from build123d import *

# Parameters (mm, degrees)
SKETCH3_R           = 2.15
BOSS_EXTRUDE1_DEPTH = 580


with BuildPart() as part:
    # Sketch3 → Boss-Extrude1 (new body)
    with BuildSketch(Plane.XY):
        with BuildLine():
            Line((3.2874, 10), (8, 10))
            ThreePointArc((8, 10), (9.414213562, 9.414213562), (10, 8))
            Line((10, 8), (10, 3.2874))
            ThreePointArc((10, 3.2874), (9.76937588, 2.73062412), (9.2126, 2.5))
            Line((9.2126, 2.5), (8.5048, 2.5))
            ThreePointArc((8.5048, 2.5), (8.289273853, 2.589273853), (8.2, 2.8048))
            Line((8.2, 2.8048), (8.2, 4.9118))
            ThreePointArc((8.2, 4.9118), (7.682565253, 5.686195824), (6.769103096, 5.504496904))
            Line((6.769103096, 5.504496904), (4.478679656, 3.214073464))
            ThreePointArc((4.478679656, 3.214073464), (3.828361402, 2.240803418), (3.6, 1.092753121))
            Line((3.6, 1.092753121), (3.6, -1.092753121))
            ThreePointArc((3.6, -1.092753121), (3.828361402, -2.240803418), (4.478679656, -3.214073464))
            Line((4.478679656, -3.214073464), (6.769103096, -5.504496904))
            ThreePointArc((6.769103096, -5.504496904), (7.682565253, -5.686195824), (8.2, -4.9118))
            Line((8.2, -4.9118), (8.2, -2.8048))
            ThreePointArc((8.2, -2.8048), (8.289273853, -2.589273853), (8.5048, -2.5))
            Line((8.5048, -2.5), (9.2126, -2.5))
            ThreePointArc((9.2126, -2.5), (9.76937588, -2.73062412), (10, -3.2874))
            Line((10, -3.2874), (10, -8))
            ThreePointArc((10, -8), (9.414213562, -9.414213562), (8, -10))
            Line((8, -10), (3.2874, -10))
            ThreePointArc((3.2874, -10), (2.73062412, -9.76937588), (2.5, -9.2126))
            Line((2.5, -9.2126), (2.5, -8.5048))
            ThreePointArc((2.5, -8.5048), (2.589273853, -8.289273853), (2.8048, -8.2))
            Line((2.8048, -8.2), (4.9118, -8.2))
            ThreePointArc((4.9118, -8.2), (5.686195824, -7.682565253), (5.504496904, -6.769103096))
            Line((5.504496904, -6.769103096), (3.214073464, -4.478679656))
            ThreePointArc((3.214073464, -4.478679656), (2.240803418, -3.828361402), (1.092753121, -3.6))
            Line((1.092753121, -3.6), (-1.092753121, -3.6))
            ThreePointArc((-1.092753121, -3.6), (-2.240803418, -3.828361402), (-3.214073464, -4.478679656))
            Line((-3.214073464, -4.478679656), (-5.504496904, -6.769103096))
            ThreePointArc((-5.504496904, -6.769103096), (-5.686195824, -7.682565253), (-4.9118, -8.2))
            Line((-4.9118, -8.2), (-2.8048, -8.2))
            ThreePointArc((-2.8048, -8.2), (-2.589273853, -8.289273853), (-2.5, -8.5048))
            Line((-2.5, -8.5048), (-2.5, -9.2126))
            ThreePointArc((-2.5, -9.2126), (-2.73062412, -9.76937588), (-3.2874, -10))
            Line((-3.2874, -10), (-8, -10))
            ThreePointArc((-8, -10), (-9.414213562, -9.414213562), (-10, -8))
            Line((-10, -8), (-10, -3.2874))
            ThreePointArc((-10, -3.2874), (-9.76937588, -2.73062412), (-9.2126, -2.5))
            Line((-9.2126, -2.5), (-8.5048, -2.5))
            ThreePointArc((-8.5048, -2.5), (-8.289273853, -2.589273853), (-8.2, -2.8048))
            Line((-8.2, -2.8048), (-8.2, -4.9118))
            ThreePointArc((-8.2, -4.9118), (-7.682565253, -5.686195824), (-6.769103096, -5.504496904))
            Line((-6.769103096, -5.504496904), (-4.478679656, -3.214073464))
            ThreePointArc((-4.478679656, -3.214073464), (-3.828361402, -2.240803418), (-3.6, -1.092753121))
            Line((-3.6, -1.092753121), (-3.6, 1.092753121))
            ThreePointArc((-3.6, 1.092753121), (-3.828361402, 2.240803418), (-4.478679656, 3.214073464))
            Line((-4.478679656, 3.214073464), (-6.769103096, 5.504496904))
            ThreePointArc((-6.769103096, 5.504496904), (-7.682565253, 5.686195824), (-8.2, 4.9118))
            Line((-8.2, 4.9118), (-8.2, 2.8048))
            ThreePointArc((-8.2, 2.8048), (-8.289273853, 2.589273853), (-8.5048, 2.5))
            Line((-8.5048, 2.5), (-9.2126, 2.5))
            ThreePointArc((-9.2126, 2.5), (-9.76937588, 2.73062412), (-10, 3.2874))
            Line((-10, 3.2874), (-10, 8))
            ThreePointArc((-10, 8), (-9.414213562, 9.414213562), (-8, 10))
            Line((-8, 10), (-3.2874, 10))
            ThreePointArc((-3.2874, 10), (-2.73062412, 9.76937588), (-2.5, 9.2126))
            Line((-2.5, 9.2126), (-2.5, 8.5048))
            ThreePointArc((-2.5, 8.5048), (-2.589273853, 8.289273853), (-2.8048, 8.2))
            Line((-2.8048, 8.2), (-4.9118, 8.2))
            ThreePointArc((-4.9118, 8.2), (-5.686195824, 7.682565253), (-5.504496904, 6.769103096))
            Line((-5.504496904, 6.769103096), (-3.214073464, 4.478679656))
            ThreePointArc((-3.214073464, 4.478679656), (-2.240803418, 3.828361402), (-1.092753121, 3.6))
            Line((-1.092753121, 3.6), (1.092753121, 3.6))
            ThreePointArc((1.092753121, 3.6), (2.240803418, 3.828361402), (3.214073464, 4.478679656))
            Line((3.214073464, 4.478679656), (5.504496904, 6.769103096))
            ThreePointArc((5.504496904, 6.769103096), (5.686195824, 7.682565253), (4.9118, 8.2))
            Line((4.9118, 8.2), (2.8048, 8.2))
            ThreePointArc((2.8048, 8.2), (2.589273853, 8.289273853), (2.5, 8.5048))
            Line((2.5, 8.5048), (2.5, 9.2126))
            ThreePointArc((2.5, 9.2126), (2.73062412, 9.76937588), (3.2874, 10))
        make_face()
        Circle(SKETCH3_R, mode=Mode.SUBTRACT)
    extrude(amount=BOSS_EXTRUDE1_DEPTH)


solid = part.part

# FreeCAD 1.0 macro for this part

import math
import FreeCAD as App
import Part
import Sketcher

V = App.Vector

doc = App.newDocument("Part")
body = doc.addObject("PartDesign::Body", "Body")

sketch1 = body.newObject("Sketcher::SketchObject", "Sketch")
sketch1.AttachmentSupport = (doc.getObject("XY_Plane"), [""])
sketch1.MapMode = "FlatFace"
sketch1.addGeometry([
    Part.LineSegment(V(8, 10, 0), V(3.2874, 10, 0)),
    Part.ArcOfCircle(Part.Circle(V(3.2874, 9.2126, 0), V(0, 0, 1), 0.7874), math.radians(90), math.radians(180)),
    Part.LineSegment(V(2.5, 9.2126, 0), V(2.5, 8.5048, 0)),
    Part.ArcOfCircle(Part.Circle(V(2.8048, 8.5048, 0), V(0, 0, 1), 0.3048), math.radians(180), math.radians(270)),
    Part.LineSegment(V(2.8048, 8.2, 0), V(4.9118, 8.2, 0)),
    Part.ArcOfCircle(Part.Circle(V(4.9118, 7.3618, 0), V(0, 0, 1), 0.8382), math.radians(-45), math.radians(90)),
    Part.LineSegment(V(5.504497, 6.769103, 0), V(3.214073, 4.47868, 0)),
    Part.ArcOfCircle(Part.Circle(V(1.092753, 6.6, 0), V(0, 0, 1), 3), math.radians(-90), math.radians(-45)),
    Part.LineSegment(V(1.092753, 3.6, 0), V(-1.092753, 3.6, 0)),
    Part.ArcOfCircle(Part.Circle(V(-1.092753, 6.6, 0), V(0, 0, 1), 3), math.radians(-135), math.radians(-90)),
    Part.LineSegment(V(-3.214073, 4.47868, 0), V(-5.504497, 6.769103, 0)),
    Part.ArcOfCircle(Part.Circle(V(-4.9118, 7.3618, 0), V(0, 0, 1), 0.8382), math.radians(90), math.radians(225)),
    Part.LineSegment(V(-4.9118, 8.2, 0), V(-2.8048, 8.2, 0)),
    Part.ArcOfCircle(Part.Circle(V(-2.8048, 8.5048, 0), V(0, 0, 1), 0.3048), math.radians(-90), math.radians(0)),
    Part.LineSegment(V(-2.5, 8.5048, 0), V(-2.5, 9.2126, 0)),
    Part.ArcOfCircle(Part.Circle(V(-3.2874, 9.2126, 0), V(0, 0, 1), 0.7874), math.radians(0), math.radians(90)),
    Part.LineSegment(V(-3.2874, 10, 0), V(-8, 10, 0)),
    Part.ArcOfCircle(Part.Circle(V(-8, 8, 0), V(0, 0, 1), 2), math.radians(90), math.radians(180)),
    Part.LineSegment(V(-10, 8, 0), V(-10, 3.2874, 0)),
    Part.ArcOfCircle(Part.Circle(V(-9.2126, 3.2874, 0), V(0, 0, 1), 0.7874), math.radians(180), math.radians(270)),
    Part.LineSegment(V(-9.2126, 2.5, 0), V(-8.5048, 2.5, 0)),
    Part.ArcOfCircle(Part.Circle(V(-8.5048, 2.8048, 0), V(0, 0, 1), 0.3048), math.radians(-90), math.radians(0)),
    Part.LineSegment(V(-8.2, 2.8048, 0), V(-8.2, 4.9118, 0)),
    Part.ArcOfCircle(Part.Circle(V(-7.3618, 4.9118, 0), V(0, 0, 1), 0.8382), math.radians(45), math.radians(180)),
    Part.LineSegment(V(-6.769103, 5.504497, 0), V(-4.47868, 3.214073, 0)),
    Part.ArcOfCircle(Part.Circle(V(-6.6, 1.092753, 0), V(0, 0, 1), 3), math.radians(0), math.radians(45)),
    Part.LineSegment(V(-3.6, 1.092753, 0), V(-3.6, -1.092753, 0)),
    Part.ArcOfCircle(Part.Circle(V(-6.6, -1.092753, 0), V(0, 0, 1), 3), math.radians(-45), math.radians(0)),
    Part.LineSegment(V(-4.47868, -3.214073, 0), V(-6.769103, -5.504497, 0)),
    Part.ArcOfCircle(Part.Circle(V(-7.3618, -4.9118, 0), V(0, 0, 1), 0.8382), math.radians(180), math.radians(315)),
    Part.LineSegment(V(-8.2, -4.9118, 0), V(-8.2, -2.8048, 0)),
    Part.ArcOfCircle(Part.Circle(V(-8.5048, -2.8048, 0), V(0, 0, 1), 0.3048), math.radians(0), math.radians(90)),
    Part.LineSegment(V(-8.5048, -2.5, 0), V(-9.2126, -2.5, 0)),
    Part.ArcOfCircle(Part.Circle(V(-9.2126, -3.2874, 0), V(0, 0, 1), 0.7874), math.radians(90), math.radians(180)),
    Part.LineSegment(V(-10, -3.2874, 0), V(-10, -8, 0)),
    Part.ArcOfCircle(Part.Circle(V(-8, -8, 0), V(0, 0, 1), 2), math.radians(-180), math.radians(-90)),
    Part.LineSegment(V(-8, -10, 0), V(-3.2874, -10, 0)),
    Part.ArcOfCircle(Part.Circle(V(-3.2874, -9.2126, 0), V(0, 0, 1), 0.7874), math.radians(-90), math.radians(0)),
    Part.LineSegment(V(-2.5, -9.2126, 0), V(-2.5, -8.5048, 0)),
    Part.ArcOfCircle(Part.Circle(V(-2.8048, -8.5048, 0), V(0, 0, 1), 0.3048), math.radians(0), math.radians(90)),
    Part.LineSegment(V(-2.8048, -8.2, 0), V(-4.9118, -8.2, 0)),
    Part.ArcOfCircle(Part.Circle(V(-4.9118, -7.3618, 0), V(0, 0, 1), 0.8382), math.radians(135), math.radians(270)),
    Part.LineSegment(V(-5.504497, -6.769103, 0), V(-3.214073, -4.47868, 0)),
    Part.ArcOfCircle(Part.Circle(V(-1.092753, -6.6, 0), V(0, 0, 1), 3), math.radians(90), math.radians(135)),
    Part.LineSegment(V(-1.092753, -3.6, 0), V(1.092753, -3.6, 0)),
    Part.ArcOfCircle(Part.Circle(V(1.092753, -6.6, 0), V(0, 0, 1), 3), math.radians(45), math.radians(90)),
    Part.LineSegment(V(3.214073, -4.47868, 0), V(5.504497, -6.769103, 0)),
    Part.ArcOfCircle(Part.Circle(V(4.9118, -7.3618, 0), V(0, 0, 1), 0.8382), math.radians(-90), math.radians(45)),
    Part.LineSegment(V(4.9118, -8.2, 0), V(2.8048, -8.2, 0)),
    Part.ArcOfCircle(Part.Circle(V(2.8048, -8.5048, 0), V(0, 0, 1), 0.3048), math.radians(90), math.radians(180)),
    Part.LineSegment(V(2.5, -8.5048, 0), V(2.5, -9.2126, 0)),
    Part.ArcOfCircle(Part.Circle(V(3.2874, -9.2126, 0), V(0, 0, 1), 0.7874), math.radians(180), math.radians(270)),
    Part.LineSegment(V(3.2874, -10, 0), V(8, -10, 0)),
    Part.ArcOfCircle(Part.Circle(V(8, -8, 0), V(0, 0, 1), 2), math.radians(-90), math.radians(0)),
    Part.LineSegment(V(10, -8, 0), V(10, -3.2874, 0)),
    Part.ArcOfCircle(Part.Circle(V(9.2126, -3.2874, 0), V(0, 0, 1), 0.7874), math.radians(0), math.radians(90)),
    Part.LineSegment(V(9.2126, -2.5, 0), V(8.5048, -2.5, 0)),
    Part.ArcOfCircle(Part.Circle(V(8.5048, -2.8048, 0), V(0, 0, 1), 0.3048), math.radians(90), math.radians(180)),
    Part.LineSegment(V(8.2, -2.8048, 0), V(8.2, -4.9118, 0)),
    Part.ArcOfCircle(Part.Circle(V(7.3618, -4.9118, 0), V(0, 0, 1), 0.8382), math.radians(-135), math.radians(0)),
    Part.LineSegment(V(6.769103, -5.504497, 0), V(4.47868, -3.214073, 0)),
    Part.ArcOfCircle(Part.Circle(V(6.6, -1.092753, 0), V(0, 0, 1), 3), math.radians(180), math.radians(225)),
    Part.LineSegment(V(3.6, -1.092753, 0), V(3.6, 1.092753, 0)),
    Part.ArcOfCircle(Part.Circle(V(6.6, 1.092753, 0), V(0, 0, 1), 3), math.radians(135), math.radians(180)),
    Part.LineSegment(V(4.47868, 3.214073, 0), V(6.769103, 5.504497, 0)),
    Part.ArcOfCircle(Part.Circle(V(7.3618, 4.9118, 0), V(0, 0, 1), 0.8382), math.radians(0), math.radians(135)),
    Part.LineSegment(V(8.2, 4.9118, 0), V(8.2, 2.8048, 0)),
    Part.ArcOfCircle(Part.Circle(V(8.5048, 2.8048, 0), V(0, 0, 1), 0.3048), math.radians(180), math.radians(270)),
    Part.LineSegment(V(8.5048, 2.5, 0), V(9.2126, 2.5, 0)),
    Part.ArcOfCircle(Part.Circle(V(9.2126, 3.2874, 0), V(0, 0, 1), 0.7874), math.radians(-90), math.radians(0)),
    Part.LineSegment(V(10, 3.2874, 0), V(10, 8, 0)),
    Part.ArcOfCircle(Part.Circle(V(8, 8, 0), V(0, 0, 1), 2), math.radians(0), math.radians(90)),
    Part.Circle(V(0, 0, 0), V(0, 0, 1), 2.15),
], False)
sketch1.addConstraint([
    Sketcher.Constraint("Tangent", 0, 2, 1, 1),
    Sketcher.Constraint("Tangent", 1, 2, 2, 1),
    Sketcher.Constraint("Tangent", 2, 2, 3, 1),
    Sketcher.Constraint("Tangent", 3, 2, 4, 1),
    Sketcher.Constraint("Tangent", 4, 2, 5, 2),
    Sketcher.Constraint("Tangent", 5, 1, 6, 1),
    Sketcher.Constraint("Tangent", 6, 2, 7, 2),
    Sketcher.Constraint("Tangent", 7, 1, 8, 1),
    Sketcher.Constraint("Tangent", 8, 2, 9, 2),
    Sketcher.Constraint("Tangent", 9, 1, 10, 1),
    Sketcher.Constraint("Tangent", 10, 2, 11, 2),
    Sketcher.Constraint("Tangent", 11, 1, 12, 1),
    Sketcher.Constraint("Tangent", 12, 2, 13, 1),
    Sketcher.Constraint("Tangent", 13, 2, 14, 1),
    Sketcher.Constraint("Tangent", 14, 2, 15, 1),
    Sketcher.Constraint("Tangent", 15, 2, 16, 1),
    Sketcher.Constraint("Tangent", 16, 2, 17, 1),
    Sketcher.Constraint("Tangent", 17, 2, 18, 1),
    Sketcher.Constraint("Tangent", 18, 2, 19, 1),
    Sketcher.Constraint("Tangent", 19, 2, 20, 1),
    Sketcher.Constraint("Tangent", 20, 2, 21, 1),
    Sketcher.Constraint("Tangent", 21, 2, 22, 1),
    Sketcher.Constraint("Tangent", 22, 2, 23, 2),
    Sketcher.Constraint("Tangent", 23, 1, 24, 1),
    Sketcher.Constraint("Tangent", 24, 2, 25, 2),
    Sketcher.Constraint("Tangent", 25, 1, 26, 1),
    Sketcher.Constraint("Tangent", 26, 2, 27, 2),
    Sketcher.Constraint("Tangent", 27, 1, 28, 1),
    Sketcher.Constraint("Tangent", 28, 2, 29, 2),
    Sketcher.Constraint("Tangent", 29, 1, 30, 1),
    Sketcher.Constraint("Tangent", 30, 2, 31, 1),
    Sketcher.Constraint("Tangent", 31, 2, 32, 1),
    Sketcher.Constraint("Tangent", 32, 2, 33, 1),
    Sketcher.Constraint("Tangent", 33, 2, 34, 1),
    Sketcher.Constraint("Tangent", 34, 2, 35, 1),
    Sketcher.Constraint("Tangent", 35, 2, 36, 1),
    Sketcher.Constraint("Tangent", 36, 2, 37, 1),
    Sketcher.Constraint("Tangent", 37, 2, 38, 1),
    Sketcher.Constraint("Tangent", 38, 2, 39, 1),
    Sketcher.Constraint("Tangent", 39, 2, 40, 1),
    Sketcher.Constraint("Tangent", 40, 2, 41, 2),
    Sketcher.Constraint("Tangent", 41, 1, 42, 1),
    Sketcher.Constraint("Tangent", 42, 2, 43, 2),
    Sketcher.Constraint("Tangent", 43, 1, 44, 1),
    Sketcher.Constraint("Tangent", 44, 2, 45, 2),
    Sketcher.Constraint("Tangent", 45, 1, 46, 1),
    Sketcher.Constraint("Tangent", 46, 2, 47, 2),
    Sketcher.Constraint("Tangent", 47, 1, 48, 1),
    Sketcher.Constraint("Tangent", 48, 2, 49, 1),
    Sketcher.Constraint("Tangent", 49, 2, 50, 1),
    Sketcher.Constraint("Tangent", 50, 2, 51, 1),
    Sketcher.Constraint("Tangent", 51, 2, 52, 1),
    Sketcher.Constraint("Tangent", 52, 2, 53, 1),
    Sketcher.Constraint("Tangent", 53, 2, 54, 1),
    Sketcher.Constraint("Tangent", 54, 2, 55, 1),
    Sketcher.Constraint("Tangent", 55, 2, 56, 1),
    Sketcher.Constraint("Tangent", 56, 2, 57, 1),
    Sketcher.Constraint("Tangent", 57, 2, 58, 1),
    Sketcher.Constraint("Tangent", 58, 2, 59, 2),
    Sketcher.Constraint("Tangent", 59, 1, 60, 1),
    Sketcher.Constraint("Tangent", 60, 2, 61, 2),
    Sketcher.Constraint("Tangent", 61, 1, 62, 1),
    Sketcher.Constraint("Tangent", 62, 2, 63, 2),
    Sketcher.Constraint("Tangent", 63, 1, 64, 1),
    Sketcher.Constraint("Tangent", 64, 2, 65, 2),
    Sketcher.Constraint("Tangent", 65, 1, 66, 1),
    Sketcher.Constraint("Tangent", 66, 2, 67, 1),
    Sketcher.Constraint("Tangent", 67, 2, 68, 1),
    Sketcher.Constraint("Tangent", 68, 2, 69, 1),
    Sketcher.Constraint("Tangent", 69, 2, 70, 1),
    Sketcher.Constraint("Tangent", 70, 2, 71, 1),
    Sketcher.Constraint("Tangent", 71, 2, 0, 1),
    Sketcher.Constraint("Horizontal", 0),
    Sketcher.Constraint("Vertical", 2),
    Sketcher.Constraint("Horizontal", 4),
    Sketcher.Constraint("Horizontal", 8),
    Sketcher.Constraint("Horizontal", 12),
    Sketcher.Constraint("Vertical", 14),
    Sketcher.Constraint("Horizontal", 16),
    Sketcher.Constraint("Vertical", 18),
    Sketcher.Constraint("Horizontal", 20),
    Sketcher.Constraint("Vertical", 22),
    Sketcher.Constraint("Vertical", 26),
    Sketcher.Constraint("Vertical", 30),
    Sketcher.Constraint("Horizontal", 32),
    Sketcher.Constraint("Vertical", 34),
    Sketcher.Constraint("Horizontal", 36),
    Sketcher.Constraint("Vertical", 38),
    Sketcher.Constraint("Horizontal", 40),
    Sketcher.Constraint("Horizontal", 44),
    Sketcher.Constraint("Horizontal", 48),
    Sketcher.Constraint("Vertical", 50),
    Sketcher.Constraint("Horizontal", 52),
    Sketcher.Constraint("Vertical", 54),
    Sketcher.Constraint("Horizontal", 56),
    Sketcher.Constraint("Vertical", 58),
    Sketcher.Constraint("Vertical", 62),
    Sketcher.Constraint("Vertical", 66),
    Sketcher.Constraint("Horizontal", 68),
    Sketcher.Constraint("Vertical", 70),
    Sketcher.Constraint("Coincident", 72, 3, -1, 1),
    Sketcher.Constraint("Equal", 7, 9),
    Sketcher.Constraint("Equal", 5, 11),
    Sketcher.Constraint("Equal", 3, 13),
    Sketcher.Constraint("Equal", 1, 15),
    Sketcher.Constraint("Equal", 15, 19),
    Sketcher.Constraint("Equal", 13, 21),
    Sketcher.Constraint("Equal", 11, 23),
    Sketcher.Constraint("Equal", 9, 25),
    Sketcher.Constraint("Equal", 25, 27),
    Sketcher.Constraint("Equal", 23, 29),
    Sketcher.Constraint("Equal", 21, 31),
    Sketcher.Constraint("Equal", 19, 33),
    Sketcher.Constraint("Equal", 17, 35),
    Sketcher.Constraint("Equal", 33, 37),
    Sketcher.Constraint("Equal", 31, 39),
    Sketcher.Constraint("Equal", 29, 41),
    Sketcher.Constraint("Equal", 27, 43),
    Sketcher.Constraint("Equal", 43, 45),
    Sketcher.Constraint("Equal", 41, 47),
    Sketcher.Constraint("Equal", 39, 49),
    Sketcher.Constraint("Equal", 37, 51),
    Sketcher.Constraint("Equal", 35, 53),
    Sketcher.Constraint("Equal", 51, 55),
    Sketcher.Constraint("Equal", 49, 57),
    Sketcher.Constraint("Equal", 47, 59),
    Sketcher.Constraint("Equal", 45, 61),
    Sketcher.Constraint("Equal", 61, 63),
    Sketcher.Constraint("Equal", 59, 65),
    Sketcher.Constraint("Equal", 57, 67),
    Sketcher.Constraint("Equal", 55, 69),
    Sketcher.Constraint("Equal", 53, 71),
    Sketcher.Constraint("Symmetric", 1, 3, 37, 3, -1, 1),
    Sketcher.Constraint("Symmetric", 5, 3, 41, 3, -1, 1),
    Sketcher.Constraint("Symmetric", 7, 3, 43, 3, -1, 1),
    Sketcher.Constraint("Symmetric", 11, 3, 47, 3, -1, 1),
    Sketcher.Constraint("Symmetric", 15, 3, 51, 3, -1, 1),
    Sketcher.Constraint("Symmetric", 19, 3, 55, 3, -1, 1),
    Sketcher.Constraint("Symmetric", 23, 3, 59, 3, -1, 1),
    Sketcher.Constraint("Symmetric", 25, 3, 61, 3, -1, 1),
    Sketcher.Constraint("Symmetric", 29, 3, 65, 3, -1, 1),
    Sketcher.Constraint("Symmetric", 33, 3, 69, 3, -1, 1),
    Sketcher.Constraint("Symmetric", 5, 3, 11, 3, -2),
    Sketcher.Constraint("Symmetric", 1, 3, 15, 3, -2),
    Sketcher.Constraint("Symmetric", 33, 3, 55, 3, -2),
    Sketcher.Constraint("Symmetric", 29, 3, 59, 3, -2),
    Sketcher.Constraint("Perpendicular", 6, 10),
    Sketcher.Constraint("Parallel", 10, 24),
    Sketcher.Constraint("Perpendicular", 24, 28),
    Sketcher.Constraint("Perpendicular", 42, 46),
    Sketcher.Constraint("Perpendicular", 60, 64),
    Sketcher.Constraint("Horizontal", 27, 3, 61, 3),
    Sketcher.Constraint("Equal", 68, 2),
    Sketcher.Constraint("Equal", 52, 18),
    Sketcher.Constraint("Equal", 48, 22),
    Sketcher.Constraint("Equal", 44, 26),
    Sketcher.Constraint("Equal", 10, 24),
    Sketcher.Constraint("Radius", 7, 3.0),
    Sketcher.Constraint("Radius", 17, 2.0),
    Sketcher.Constraint("Diameter", 72, 4.3),
    Sketcher.Constraint("DistanceX", 17, 3, -1, 1, 8.0),
    Sketcher.Constraint("DistanceY", -1, 1, 7, 3, 6.6),
    Sketcher.Constraint("DistanceX", -1, 1, 1, 2, 2.5),
    Sketcher.Constraint("DistanceY", -1, 1, 3, 2, 8.2),
    Sketcher.Constraint("Radius", 1, 0.7874),
    Sketcher.Constraint("Radius", 3, 0.3048),
    Sketcher.Constraint("Radius", 5, 0.8382),
    Sketcher.Constraint("DistanceX", 4, 1, 4, 2, 2.107),
])
pad1 = body.newObject("PartDesign::Pad", "Pad")
pad1.Profile = sketch1
pad1.Length = 580

doc.recompute()
